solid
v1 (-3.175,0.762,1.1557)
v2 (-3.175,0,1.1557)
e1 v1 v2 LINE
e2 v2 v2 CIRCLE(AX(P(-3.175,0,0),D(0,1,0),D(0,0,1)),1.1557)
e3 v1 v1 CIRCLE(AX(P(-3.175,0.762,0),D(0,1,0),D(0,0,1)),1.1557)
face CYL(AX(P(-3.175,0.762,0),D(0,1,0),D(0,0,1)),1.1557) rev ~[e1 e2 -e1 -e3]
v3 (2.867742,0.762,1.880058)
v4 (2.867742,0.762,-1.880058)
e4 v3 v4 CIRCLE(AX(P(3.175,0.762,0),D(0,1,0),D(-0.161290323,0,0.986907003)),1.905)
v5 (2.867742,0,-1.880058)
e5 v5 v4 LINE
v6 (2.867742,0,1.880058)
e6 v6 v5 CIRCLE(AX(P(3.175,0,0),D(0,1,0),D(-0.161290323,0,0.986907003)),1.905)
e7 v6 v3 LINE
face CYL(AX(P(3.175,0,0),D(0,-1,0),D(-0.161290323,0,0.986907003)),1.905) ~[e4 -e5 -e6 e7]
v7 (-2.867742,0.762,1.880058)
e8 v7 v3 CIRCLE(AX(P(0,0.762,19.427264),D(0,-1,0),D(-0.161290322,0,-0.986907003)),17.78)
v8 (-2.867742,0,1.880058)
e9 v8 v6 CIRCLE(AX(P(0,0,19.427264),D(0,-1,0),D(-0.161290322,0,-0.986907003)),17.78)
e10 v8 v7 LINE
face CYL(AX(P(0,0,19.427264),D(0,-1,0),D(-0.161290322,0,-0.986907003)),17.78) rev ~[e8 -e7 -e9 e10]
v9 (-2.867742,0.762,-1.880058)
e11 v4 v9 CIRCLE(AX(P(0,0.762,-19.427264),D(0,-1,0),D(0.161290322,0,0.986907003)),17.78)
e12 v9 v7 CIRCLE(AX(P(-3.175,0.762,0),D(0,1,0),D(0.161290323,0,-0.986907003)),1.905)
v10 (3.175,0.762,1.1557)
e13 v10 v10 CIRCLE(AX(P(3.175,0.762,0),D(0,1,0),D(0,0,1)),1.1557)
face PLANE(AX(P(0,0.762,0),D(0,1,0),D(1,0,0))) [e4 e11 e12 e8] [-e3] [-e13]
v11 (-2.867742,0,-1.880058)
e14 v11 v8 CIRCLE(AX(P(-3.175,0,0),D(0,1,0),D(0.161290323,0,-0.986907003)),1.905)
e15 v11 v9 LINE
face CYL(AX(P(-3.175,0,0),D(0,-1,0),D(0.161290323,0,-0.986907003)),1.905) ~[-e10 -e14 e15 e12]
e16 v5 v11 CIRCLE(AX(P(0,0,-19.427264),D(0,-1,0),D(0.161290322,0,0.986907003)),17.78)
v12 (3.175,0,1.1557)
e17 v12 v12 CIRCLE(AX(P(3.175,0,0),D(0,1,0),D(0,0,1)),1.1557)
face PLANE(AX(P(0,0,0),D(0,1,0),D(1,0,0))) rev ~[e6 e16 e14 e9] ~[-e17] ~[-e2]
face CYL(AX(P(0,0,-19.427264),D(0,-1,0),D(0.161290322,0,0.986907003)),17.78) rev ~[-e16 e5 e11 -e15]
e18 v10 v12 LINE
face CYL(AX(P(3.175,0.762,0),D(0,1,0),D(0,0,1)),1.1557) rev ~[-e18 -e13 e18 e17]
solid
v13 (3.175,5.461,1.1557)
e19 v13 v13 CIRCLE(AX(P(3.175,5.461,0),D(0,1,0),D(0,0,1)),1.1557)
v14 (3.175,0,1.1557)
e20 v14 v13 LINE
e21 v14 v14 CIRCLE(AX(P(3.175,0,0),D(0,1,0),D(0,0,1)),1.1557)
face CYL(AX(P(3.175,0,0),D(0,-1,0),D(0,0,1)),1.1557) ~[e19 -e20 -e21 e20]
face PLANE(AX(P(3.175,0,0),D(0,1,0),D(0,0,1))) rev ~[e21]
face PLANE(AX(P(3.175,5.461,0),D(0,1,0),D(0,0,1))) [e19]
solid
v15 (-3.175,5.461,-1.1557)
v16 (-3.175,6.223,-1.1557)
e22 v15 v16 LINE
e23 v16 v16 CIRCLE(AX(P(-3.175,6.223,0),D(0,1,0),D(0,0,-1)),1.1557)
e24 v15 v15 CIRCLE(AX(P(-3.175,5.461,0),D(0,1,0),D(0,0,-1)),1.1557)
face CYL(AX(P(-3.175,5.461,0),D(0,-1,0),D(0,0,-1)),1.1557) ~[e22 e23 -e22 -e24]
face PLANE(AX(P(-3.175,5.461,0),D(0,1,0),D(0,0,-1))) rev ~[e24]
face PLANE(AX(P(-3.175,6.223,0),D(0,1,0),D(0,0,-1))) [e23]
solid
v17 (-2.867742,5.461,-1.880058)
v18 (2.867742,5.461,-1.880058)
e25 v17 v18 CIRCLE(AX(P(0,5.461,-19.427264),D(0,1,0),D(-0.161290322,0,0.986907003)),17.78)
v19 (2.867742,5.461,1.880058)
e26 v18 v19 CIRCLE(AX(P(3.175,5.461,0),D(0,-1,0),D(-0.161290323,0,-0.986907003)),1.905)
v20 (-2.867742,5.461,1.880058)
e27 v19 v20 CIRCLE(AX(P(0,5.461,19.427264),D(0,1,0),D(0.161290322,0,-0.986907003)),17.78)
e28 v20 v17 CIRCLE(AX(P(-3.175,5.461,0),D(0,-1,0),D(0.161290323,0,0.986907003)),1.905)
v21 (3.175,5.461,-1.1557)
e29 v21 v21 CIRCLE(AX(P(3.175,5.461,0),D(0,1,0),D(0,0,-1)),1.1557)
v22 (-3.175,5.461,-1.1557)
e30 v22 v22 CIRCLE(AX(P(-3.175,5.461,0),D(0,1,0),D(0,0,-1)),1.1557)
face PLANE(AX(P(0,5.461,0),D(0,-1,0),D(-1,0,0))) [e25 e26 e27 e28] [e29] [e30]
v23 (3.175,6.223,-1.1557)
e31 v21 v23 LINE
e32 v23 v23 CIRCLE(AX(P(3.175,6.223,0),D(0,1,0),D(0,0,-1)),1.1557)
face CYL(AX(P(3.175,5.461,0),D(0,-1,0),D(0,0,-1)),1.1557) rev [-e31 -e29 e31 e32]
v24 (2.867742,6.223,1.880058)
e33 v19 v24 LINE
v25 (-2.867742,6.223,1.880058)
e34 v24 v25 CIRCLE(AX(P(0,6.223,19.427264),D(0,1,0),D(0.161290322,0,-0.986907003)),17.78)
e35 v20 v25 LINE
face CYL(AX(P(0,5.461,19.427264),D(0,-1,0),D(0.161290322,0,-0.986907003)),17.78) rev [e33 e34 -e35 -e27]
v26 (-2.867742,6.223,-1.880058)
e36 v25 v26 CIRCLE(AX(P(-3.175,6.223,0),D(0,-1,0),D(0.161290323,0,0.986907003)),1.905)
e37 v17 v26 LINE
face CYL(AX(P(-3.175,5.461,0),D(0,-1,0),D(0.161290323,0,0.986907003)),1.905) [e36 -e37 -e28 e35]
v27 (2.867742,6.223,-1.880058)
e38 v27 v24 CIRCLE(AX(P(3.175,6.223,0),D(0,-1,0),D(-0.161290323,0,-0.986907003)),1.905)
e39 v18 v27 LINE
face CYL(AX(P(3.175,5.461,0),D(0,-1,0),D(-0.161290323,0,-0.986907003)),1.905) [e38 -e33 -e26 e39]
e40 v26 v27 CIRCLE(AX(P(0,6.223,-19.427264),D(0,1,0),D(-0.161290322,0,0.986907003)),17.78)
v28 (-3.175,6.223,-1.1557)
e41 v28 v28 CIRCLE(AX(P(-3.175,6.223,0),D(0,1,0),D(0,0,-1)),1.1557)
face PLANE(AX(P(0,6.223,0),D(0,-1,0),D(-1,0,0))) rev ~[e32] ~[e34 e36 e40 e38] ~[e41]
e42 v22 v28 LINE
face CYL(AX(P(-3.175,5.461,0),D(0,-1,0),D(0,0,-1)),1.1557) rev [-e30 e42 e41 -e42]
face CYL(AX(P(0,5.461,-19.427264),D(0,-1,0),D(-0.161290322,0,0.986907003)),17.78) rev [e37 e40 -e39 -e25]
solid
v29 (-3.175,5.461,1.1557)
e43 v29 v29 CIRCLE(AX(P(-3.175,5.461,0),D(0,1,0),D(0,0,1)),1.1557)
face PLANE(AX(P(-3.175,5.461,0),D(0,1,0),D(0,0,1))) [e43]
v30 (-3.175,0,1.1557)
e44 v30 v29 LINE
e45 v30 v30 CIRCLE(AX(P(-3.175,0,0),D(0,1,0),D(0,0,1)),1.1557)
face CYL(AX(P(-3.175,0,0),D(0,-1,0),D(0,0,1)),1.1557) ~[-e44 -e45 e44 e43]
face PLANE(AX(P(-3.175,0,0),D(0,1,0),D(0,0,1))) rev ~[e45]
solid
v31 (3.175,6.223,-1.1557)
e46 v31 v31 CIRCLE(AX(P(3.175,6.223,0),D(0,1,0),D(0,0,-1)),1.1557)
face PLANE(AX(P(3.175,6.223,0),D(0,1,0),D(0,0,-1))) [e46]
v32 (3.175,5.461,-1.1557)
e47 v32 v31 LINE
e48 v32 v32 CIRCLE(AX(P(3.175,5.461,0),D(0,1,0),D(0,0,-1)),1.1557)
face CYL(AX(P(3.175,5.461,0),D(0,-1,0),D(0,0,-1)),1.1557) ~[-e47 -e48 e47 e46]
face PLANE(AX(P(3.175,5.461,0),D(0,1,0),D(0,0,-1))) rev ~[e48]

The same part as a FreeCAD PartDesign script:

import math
import FreeCAD as App
import Part
import Sketcher
from FreeCAD import Vector
Q = App.Units.Quantity

doc = App.newDocument("Part")
params = doc.addObject("Spreadsheet::Sheet", "Params")
for row, (alias, value) in enumerate([
    ("sketch1_radius", "0.7 in"),
    ("sketch1_radius2", "0.075 in"),
    ("pad1_length", "0.03 in"),
    ("sketch2_diameter", "0.091 in"),
    ("pocket1_length", "0.185 in"),
    ("sketch3_diameter", "0.091 in"),
    ("pad2_length", "0.185 in"),
    ("pad2_length2", "0.03 in"),
    ("sketch4_diameter", "0.091 in"),
    ("pad3_length", "0.185 in"),
    ("pad3_length2", "0.03 in"),
    ("sketch5_radius", "0.7 in"),
    ("sketch5_diameter", "0.091 in"),
    ("sketch5_radius2", "0.075 in"),
    ("pad4_length", "0.03 in"),
    ("sketch6_diameter", "0.091 in"),
    ("pad5_length", "0.03 in"),
    ("sketch7_diameter", "0.091 in"),
    ("pad6_length", "0.03 in"),
], start=1):
    params.set(f"A{row}", alias)
    params.set(f"B{row}", "=" + value)
    params.setAlias(f"B{row}", alias)

body = doc.addObject("PartDesign::Body", "Body")

# Sketch on XZ plane
sketch1 = body.newObject("Sketcher::SketchObject", "Sketch")
sketch1.AttachmentSupport = (doc.getObject("XZ_Plane"), [""])
sketch1.MapMode = "FlatFace"
sketch1.addGeometry(Part.ArcOfCircle(Part.Circle(Vector(-3.2, 0, 0), Vector(0, 0, 1), 1.9), math.radians(81), math.radians(279)), False)
sketch1.addGeometry(Part.ArcOfCircle(Part.Circle(Vector(0, 19.4, 0), Vector(0, 0, 1), 17.8), math.radians(-99.28), math.radians(-80.72)), False)
sketch1.addGeometry(Part.ArcOfCircle(Part.Circle(Vector(3.2, 0, 0), Vector(0, 0, 1), 1.9), math.radians(-99), math.radians(99)), False)
sketch1.addGeometry(Part.ArcOfCircle(Part.Circle(Vector(0, -19.4, 0), Vector(0, 0, 1), 17.8), math.radians(80.72), math.radians(99.28)), False)
sketch1.addConstraint(Sketcher.Constraint("Tangent", 0, 1, 1, 1))
sketch1.addConstraint(Sketcher.Constraint("Tangent", 1, 2, 2, 2))
sketch1.addConstraint(Sketcher.Constraint("Tangent", 2, 1, 3, 1))
sketch1.addConstraint(Sketcher.Constraint("Tangent", 3, 2, 0, 2))
sketch1.addConstraint(Sketcher.Constraint("Equal", 0, 2))
sketch1.addConstraint(Sketcher.Constraint("Equal", 1, 3))
sketch1.addConstraint(Sketcher.Constraint("Symmetric", 0, 3, 2, 3, -1, 1))
sketch1.addConstraint(Sketcher.Constraint("PointOnObject", 0, 3, -1))
sketch1.addConstraint(Sketcher.Constraint("Radius", 1, Q("0.7 in")))
sketch1.addConstraint(Sketcher.Constraint("Radius", 0, Q("0.075 in")))
sketch1.addConstraint(Sketcher.Constraint("DistanceX", 0, 3, 2, 3, Q("0.25 in")))
sketch1.setExpression("Constraints[8]", "Params.sketch1_radius")
sketch1.setExpression("Constraints[9]", "Params.sketch1_radius2")
pad1 = body.newObject("PartDesign::Pad", "Pad")
pad1.Profile = sketch1
pad1.setExpression("Length", "Params.pad1_length")
pad1.Reversed = True

# Sketch on XZ plane
sketch2 = body.newObject("Sketcher::SketchObject", "Sketch001")
sketch2.AttachmentSupport = (doc.getObject("XZ_Plane"), [""])
sketch2.MapMode = "FlatFace"
sketch2.AttachmentOffset = App.Placement(Vector(0, 0, -0.03 * 25.4), App.Rotation())
sketch2.addGeometry(Part.Circle(Vector(3.2, 0, 0), Vector(0, 0, 1), 1.2), False)
sketch2.addGeometry(Part.Circle(Vector(-3.2, 0, 0), Vector(0, 0, 1), 1.2), False)
sketch2.addConstraint(Sketcher.Constraint("Equal", 0, 1))
sketch2.addConstraint(Sketcher.Constraint("Symmetric", 0, 3, 1, 3, -1, 1))
sketch2.addConstraint(Sketcher.Constraint("PointOnObject", 0, 3, -1))
sketch2.addConstraint(Sketcher.Constraint("Diameter", 0, Q("0.091 in")))
sketch2.addConstraint(Sketcher.Constraint("DistanceX", 1, 3, 0, 3, Q("0.25 in")))
sketch2.setExpression("Constraints[3]", "Params.sketch2_diameter")
pocket1 = body.newObject("PartDesign::Pocket", "Pocket")
pocket1.Profile = sketch2
pocket1.setExpression("Length", "Params.pocket1_length")
pocket1.Reversed = True
body2 = doc.addObject("PartDesign::Body", "Body001")

# Sketch on XZ plane
sketch3 = body2.newObject("Sketcher::SketchObject", "Sketch002")
sketch3.AttachmentSupport = (doc.getObject("XZ_Plane001"), [""])
sketch3.MapMode = "FlatFace"
sketch3.AttachmentOffset = App.Placement(Vector(0, 0, -0.03 * 25.4), App.Rotation())
sketch3.addGeometry(Part.Circle(Vector(3.2, 0, 0), Vector(0, 0, 1), 1.2), False)
sketch3.addConstraint(Sketcher.Constraint("PointOnObject", 0, 3, -1))
sketch3.addConstraint(Sketcher.Constraint("Diameter", 0, Q("0.091 in")))
sketch3.addConstraint(Sketcher.Constraint("DistanceX", -1, 1, 0, 3, Q("0.125 in")))
sketch3.setExpression("Constraints[1]", "Params.sketch3_diameter")
pad2 = body2.newObject("PartDesign::Pad", "Pad001")
pad2.Profile = sketch3
pad2.Type = "TwoLengths"
pad2.setExpression("Length", "Params.pad2_length")
pad2.setExpression("Length2", "Params.pad2_length2")
pad2.Reversed = True
body3 = doc.addObject("PartDesign::Body", "Body002")

# Sketch on XZ plane
sketch4 = body3.newObject("Sketcher::SketchObject", "Sketch003")
sketch4.AttachmentSupport = (doc.getObject("XZ_Plane002"), [""])
sketch4.MapMode = "FlatFace"
sketch4.AttachmentOffset = App.Placement(Vector(0, 0, -0.03 * 25.4), App.Rotation())
sketch4.addGeometry(Part.Circle(Vector(-3.2, 0, 0), Vector(0, 0, 1), 1.2), False)
sketch4.addConstraint(Sketcher.Constraint("PointOnObject", 0, 3, -1))
sketch4.addConstraint(Sketcher.Constraint("Diameter", 0, Q("0.091 in")))
sketch4.addConstraint(Sketcher.Constraint("DistanceX", 0, 3, -1, 1, Q("0.125 in")))
sketch4.setExpression("Constraints[1]", "Params.sketch4_diameter")
pad3 = body3.newObject("PartDesign::Pad", "Pad002")
pad3.Profile = sketch4
pad3.Type = "TwoLengths"
pad3.setExpression("Length", "Params.pad3_length")
pad3.setExpression("Length2", "Params.pad3_length2")
pad3.Reversed = True
body4 = doc.addObject("PartDesign::Body", "Body003")

# Sketch on XZ plane
sketch5 = body4.newObject("Sketcher::SketchObject", "Sketch004")
sketch5.AttachmentSupport = (doc.getObject("XZ_Plane003"), [""])
sketch5.MapMode = "FlatFace"
sketch5.AttachmentOffset = App.Placement(Vector(0, 0, -0.215 * 25.4), App.Rotation())
sketch5.addGeometry(Part.ArcOfCircle(Part.Circle(Vector(0, -19.4, 0), Vector(0, 0, 1), 17.8), math.radians(80.72), math.radians(99.28)), False)
sketch5.addGeometry(Part.ArcOfCircle(Part.Circle(Vector(-3.2, 0, 0), Vector(0, 0, 1), 1.9), math.radians(81), math.radians(279)), False)
sketch5.addGeometry(Part.ArcOfCircle(Part.Circle(Vector(0, 19.4, 0), Vector(0, 0, 1), 17.8), math.radians(-99.28), math.radians(-80.72)), False)
sketch5.addGeometry(Part.ArcOfCircle(Part.Circle(Vector(3.2, 0, 0), Vector(0, 0, 1), 1.9), math.radians(-99), math.radians(99)), False)
sketch5.addGeometry(Part.Circle(Vector(3.2, 0, 0), Vector(0, 0, 1), 1.2), False)
sketch5.addGeometry(Part.Circle(Vector(-3.2, 0, 0), Vector(0, 0, 1), 1.2), False)
sketch5.addConstraint(Sketcher.Constraint("Tangent", 0, 2, 1, 2))
sketch5.addConstraint(Sketcher.Constraint("Tangent", 1, 1, 2, 1))
sketch5.addConstraint(Sketcher.Constraint("Tangent", 2, 2, 3, 2))
sketch5.addConstraint(Sketcher.Constraint("Tangent", 3, 1, 0, 1))
sketch5.addConstraint(Sketcher.Constraint("Coincident", 4, 3, 3, 3))
sketch5.addConstraint(Sketcher.Constraint("Coincident", 5, 3, 1, 3))
sketch5.addConstraint(Sketcher.Constraint("Equal", 0, 2))
sketch5.addConstraint(Sketcher.Constraint("Equal", 1, 3))
sketch5.addConstraint(Sketcher.Constraint("Equal", 4, 5))
sketch5.addConstraint(Sketcher.Constraint("Symmetric", 0, 3, 2, 3, -1, 1))
sketch5.addConstraint(Sketcher.Constraint("PointOnObject", 0, 3, -2))
sketch5.addConstraint(Sketcher.Constraint("Radius", 0, Q("0.7 in")))
sketch5.addConstraint(Sketcher.Constraint("Diameter", 4, Q("0.091 in")))
sketch5.addConstraint(Sketcher.Constraint("Radius", 1, Q("0.075 in")))
sketch5.addConstraint(Sketcher.Constraint("DistanceX", 1, 3, 3, 3, Q("0.25 in")))
sketch5.setExpression("Constraints[11]", "Params.sketch5_radius")
sketch5.setExpression("Constraints[12]", "Params.sketch5_diameter")
sketch5.setExpression("Constraints[13]", "Params.sketch5_radius2")
pad4 = body4.newObject("PartDesign::Pad", "Pad003")
pad4.Profile = sketch5
pad4.setExpression("Length", "Params.pad4_length")
pad4.Reversed = True
body5 = doc.addObject("PartDesign::Body", "Body004")

# Sketch on XZ plane
sketch6 = body5.newObject("Sketcher::SketchObject", "Sketch005")
sketch6.AttachmentSupport = (doc.getObject("XZ_Plane004"), [""])
sketch6.MapMode = "FlatFace"
sketch6.AttachmentOffset = App.Placement(Vector(0, 0, -0.215 * 25.4), App.Rotation())
sketch6.addGeometry(Part.Circle(Vector(3.2, 0, 0), Vector(0, 0, 1), 1.2), False)
sketch6.addConstraint(Sketcher.Constraint("PointOnObject", 0, 3, -1))
sketch6.addConstraint(Sketcher.Constraint("Diameter", 0, Q("0.091 in")))
sketch6.addConstraint(Sketcher.Constraint("DistanceX", -1, 1, 0, 3, Q("0.125 in")))
sketch6.setExpression("Constraints[1]", "Params.sketch6_diameter")
pad5 = body5.newObject("PartDesign::Pad", "Pad004")
pad5.Profile = sketch6
pad5.setExpression("Length", "Params.pad5_length")
pad5.Reversed = True
body6 = doc.addObject("PartDesign::Body", "Body005")

# Sketch on XZ plane
sketch7 = body6.newObject("Sketcher::SketchObject", "Sketch006")
sketch7.AttachmentSupport = (doc.getObject("XZ_Plane005"), [""])
sketch7.MapMode = "FlatFace"
sketch7.AttachmentOffset = App.Placement(Vector(0, 0, -0.215 * 25.4), App.Rotation())
sketch7.addGeometry(Part.Circle(Vector(-3.2, 0, 0), Vector(0, 0, 1), 1.2), False)
sketch7.addConstraint(Sketcher.Constraint("PointOnObject", 0, 3, -1))
sketch7.addConstraint(Sketcher.Constraint("Diameter", 0, Q("0.091 in")))
sketch7.addConstraint(Sketcher.Constraint("DistanceX", 0, 3, -1, 1, Q("0.125 in")))
sketch7.setExpression("Constraints[1]", "Params.sketch7_diameter")
pad6 = body6.newObject("PartDesign::Pad", "Pad005")
pad6.Profile = sketch7
pad6.setExpression("Length", "Params.pad6_length")
pad6.Reversed = True

doc.recompute()
